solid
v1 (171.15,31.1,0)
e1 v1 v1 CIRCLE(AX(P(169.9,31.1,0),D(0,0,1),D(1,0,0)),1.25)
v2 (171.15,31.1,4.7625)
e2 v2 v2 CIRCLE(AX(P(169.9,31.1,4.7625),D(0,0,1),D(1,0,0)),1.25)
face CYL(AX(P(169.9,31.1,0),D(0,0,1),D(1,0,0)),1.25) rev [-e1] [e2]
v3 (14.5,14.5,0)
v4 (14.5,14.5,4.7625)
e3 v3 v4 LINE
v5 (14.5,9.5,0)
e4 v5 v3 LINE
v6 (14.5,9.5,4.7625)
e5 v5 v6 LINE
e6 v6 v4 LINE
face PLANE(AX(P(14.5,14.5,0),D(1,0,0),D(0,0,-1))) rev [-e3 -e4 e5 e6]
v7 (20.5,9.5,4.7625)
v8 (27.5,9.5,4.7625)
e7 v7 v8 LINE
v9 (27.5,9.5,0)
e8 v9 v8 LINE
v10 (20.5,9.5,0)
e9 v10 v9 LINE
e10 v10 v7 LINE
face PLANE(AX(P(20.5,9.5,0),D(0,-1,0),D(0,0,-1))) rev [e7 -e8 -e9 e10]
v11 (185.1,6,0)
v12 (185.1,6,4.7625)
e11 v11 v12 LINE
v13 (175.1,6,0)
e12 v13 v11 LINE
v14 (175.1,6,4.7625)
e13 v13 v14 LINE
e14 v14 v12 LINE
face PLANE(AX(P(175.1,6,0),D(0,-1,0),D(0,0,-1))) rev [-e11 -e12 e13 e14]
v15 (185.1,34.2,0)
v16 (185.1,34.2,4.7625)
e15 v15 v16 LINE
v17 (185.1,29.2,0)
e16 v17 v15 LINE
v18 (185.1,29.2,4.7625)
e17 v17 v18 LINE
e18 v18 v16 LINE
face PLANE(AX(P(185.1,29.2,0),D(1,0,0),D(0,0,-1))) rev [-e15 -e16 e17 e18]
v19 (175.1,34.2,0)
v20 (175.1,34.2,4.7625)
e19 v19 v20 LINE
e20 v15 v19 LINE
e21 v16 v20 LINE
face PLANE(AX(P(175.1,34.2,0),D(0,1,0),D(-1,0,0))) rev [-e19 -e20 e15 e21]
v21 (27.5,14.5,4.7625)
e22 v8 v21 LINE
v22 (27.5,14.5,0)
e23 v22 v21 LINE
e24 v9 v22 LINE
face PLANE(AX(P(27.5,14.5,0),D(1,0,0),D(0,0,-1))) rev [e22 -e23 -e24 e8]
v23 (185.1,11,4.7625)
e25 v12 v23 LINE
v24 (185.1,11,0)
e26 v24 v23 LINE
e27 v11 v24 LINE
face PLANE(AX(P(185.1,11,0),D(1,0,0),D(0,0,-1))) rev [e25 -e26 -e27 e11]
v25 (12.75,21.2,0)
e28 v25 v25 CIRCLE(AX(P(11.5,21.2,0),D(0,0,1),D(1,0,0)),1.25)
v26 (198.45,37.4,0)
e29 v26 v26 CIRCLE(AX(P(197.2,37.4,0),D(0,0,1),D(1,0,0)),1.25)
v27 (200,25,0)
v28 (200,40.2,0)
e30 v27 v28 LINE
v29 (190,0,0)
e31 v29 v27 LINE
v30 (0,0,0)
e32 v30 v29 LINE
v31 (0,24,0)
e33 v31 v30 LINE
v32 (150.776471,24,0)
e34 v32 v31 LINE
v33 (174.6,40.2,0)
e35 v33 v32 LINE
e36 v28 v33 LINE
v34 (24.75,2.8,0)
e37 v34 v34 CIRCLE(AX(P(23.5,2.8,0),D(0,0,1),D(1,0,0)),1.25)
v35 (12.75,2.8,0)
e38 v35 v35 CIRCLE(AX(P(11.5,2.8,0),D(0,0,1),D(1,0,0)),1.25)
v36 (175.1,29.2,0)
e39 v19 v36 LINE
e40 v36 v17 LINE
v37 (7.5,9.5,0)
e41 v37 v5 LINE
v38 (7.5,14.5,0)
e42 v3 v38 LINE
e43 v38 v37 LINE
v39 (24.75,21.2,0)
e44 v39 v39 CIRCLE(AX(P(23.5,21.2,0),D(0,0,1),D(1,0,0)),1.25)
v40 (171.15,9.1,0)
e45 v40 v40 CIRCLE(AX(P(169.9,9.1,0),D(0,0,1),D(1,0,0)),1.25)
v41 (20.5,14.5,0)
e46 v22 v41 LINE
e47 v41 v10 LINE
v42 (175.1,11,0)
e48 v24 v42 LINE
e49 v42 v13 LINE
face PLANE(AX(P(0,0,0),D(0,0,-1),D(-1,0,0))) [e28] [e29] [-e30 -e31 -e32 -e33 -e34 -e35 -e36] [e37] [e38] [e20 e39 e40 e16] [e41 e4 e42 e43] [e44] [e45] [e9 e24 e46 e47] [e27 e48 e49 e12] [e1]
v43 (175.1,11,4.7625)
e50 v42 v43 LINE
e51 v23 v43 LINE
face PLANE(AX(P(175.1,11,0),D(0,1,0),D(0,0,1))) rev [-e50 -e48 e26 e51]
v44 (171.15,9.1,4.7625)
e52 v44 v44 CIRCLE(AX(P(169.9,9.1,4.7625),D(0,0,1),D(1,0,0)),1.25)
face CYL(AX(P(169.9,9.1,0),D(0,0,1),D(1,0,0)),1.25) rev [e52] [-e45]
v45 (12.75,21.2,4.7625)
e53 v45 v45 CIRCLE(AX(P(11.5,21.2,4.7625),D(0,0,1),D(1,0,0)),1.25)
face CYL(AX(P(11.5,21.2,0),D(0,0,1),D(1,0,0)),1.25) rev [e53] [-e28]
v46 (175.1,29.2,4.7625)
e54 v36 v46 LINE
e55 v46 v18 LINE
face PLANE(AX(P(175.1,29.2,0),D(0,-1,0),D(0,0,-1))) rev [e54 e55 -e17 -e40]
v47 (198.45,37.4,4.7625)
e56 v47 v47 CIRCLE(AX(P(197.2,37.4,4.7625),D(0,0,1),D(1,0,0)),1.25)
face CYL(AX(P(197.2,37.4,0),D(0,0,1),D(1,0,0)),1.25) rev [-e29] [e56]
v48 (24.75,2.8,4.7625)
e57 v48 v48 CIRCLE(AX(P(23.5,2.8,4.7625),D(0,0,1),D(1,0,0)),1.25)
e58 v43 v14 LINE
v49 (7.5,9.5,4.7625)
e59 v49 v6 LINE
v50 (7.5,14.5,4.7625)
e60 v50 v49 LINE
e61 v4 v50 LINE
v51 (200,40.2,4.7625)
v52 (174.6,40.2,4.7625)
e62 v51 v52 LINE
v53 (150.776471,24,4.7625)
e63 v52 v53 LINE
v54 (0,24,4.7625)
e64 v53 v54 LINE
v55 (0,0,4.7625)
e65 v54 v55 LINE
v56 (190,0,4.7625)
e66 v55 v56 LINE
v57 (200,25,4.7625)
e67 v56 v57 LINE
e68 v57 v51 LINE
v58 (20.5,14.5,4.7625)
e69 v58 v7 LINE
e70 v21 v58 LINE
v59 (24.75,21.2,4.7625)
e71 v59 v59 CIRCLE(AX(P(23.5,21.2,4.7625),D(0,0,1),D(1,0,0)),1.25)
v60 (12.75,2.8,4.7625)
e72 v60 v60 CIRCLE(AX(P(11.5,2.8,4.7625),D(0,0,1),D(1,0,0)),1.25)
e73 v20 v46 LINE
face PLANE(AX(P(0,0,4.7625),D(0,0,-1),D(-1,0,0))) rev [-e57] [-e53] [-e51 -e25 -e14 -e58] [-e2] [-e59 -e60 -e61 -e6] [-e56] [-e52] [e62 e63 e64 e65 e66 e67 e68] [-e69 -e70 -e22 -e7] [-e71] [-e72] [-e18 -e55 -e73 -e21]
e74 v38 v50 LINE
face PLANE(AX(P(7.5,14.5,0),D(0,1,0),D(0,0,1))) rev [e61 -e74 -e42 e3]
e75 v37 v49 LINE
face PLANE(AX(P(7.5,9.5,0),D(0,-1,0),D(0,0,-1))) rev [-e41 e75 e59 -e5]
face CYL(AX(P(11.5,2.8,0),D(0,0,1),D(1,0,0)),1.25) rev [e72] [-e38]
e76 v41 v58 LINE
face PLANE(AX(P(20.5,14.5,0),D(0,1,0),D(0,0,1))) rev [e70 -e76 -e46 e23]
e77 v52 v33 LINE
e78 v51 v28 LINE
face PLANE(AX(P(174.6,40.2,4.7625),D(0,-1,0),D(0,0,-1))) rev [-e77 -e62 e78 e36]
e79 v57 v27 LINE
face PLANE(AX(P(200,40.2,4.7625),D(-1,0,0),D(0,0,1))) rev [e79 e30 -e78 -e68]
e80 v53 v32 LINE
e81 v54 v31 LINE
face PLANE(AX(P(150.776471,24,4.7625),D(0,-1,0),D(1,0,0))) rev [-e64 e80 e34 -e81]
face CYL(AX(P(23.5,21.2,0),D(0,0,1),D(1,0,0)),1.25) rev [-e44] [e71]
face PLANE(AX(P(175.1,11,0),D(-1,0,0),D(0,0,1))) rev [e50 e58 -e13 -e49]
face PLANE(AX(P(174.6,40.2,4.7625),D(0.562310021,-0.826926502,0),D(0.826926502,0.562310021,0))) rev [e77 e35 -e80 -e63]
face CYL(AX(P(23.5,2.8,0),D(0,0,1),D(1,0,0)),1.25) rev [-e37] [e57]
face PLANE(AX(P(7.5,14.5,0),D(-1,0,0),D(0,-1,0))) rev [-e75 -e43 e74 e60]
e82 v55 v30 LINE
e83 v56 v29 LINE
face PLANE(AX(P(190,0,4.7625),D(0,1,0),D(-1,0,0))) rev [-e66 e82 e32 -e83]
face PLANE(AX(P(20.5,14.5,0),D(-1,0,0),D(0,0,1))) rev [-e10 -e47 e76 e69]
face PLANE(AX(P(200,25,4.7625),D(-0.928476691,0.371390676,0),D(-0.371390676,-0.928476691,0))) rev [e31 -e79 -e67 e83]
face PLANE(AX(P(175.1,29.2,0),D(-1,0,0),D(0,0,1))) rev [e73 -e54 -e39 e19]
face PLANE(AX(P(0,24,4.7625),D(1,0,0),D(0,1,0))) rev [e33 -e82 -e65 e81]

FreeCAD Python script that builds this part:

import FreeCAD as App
import Part
import Sketcher
from FreeCAD import Vector
Q = App.Units.Quantity


def add_polygon(sketch, points):
    """Adds a closed chain of lines whose ends are joined by coincident constraints."""
    first, n = sketch.GeometryCount, len(points)
    for a, b in zip(points, points[1:] + points[:1]):
        sketch.addGeometry(Part.LineSegment(App.Vector(*a, 0), App.Vector(*b, 0)), False)
    for i in range(n):
        sketch.addConstraint(Sketcher.Constraint("Coincident", first + i, 2, first + (i + 1) % n, 1))

doc = App.newDocument("Part")
body = doc.addObject("PartDesign::Body", "Body")

# Sketch on XY plane
sketch1 = body.newObject("Sketcher::SketchObject", "Sketch")
sketch1.AttachmentSupport = (doc.getObject("XY_Plane"), [""])
sketch1.MapMode = "FlatFace"
add_polygon(sketch1, [(175, 40), (151, 24), (0, 24), (0, 0), (190, 0), (200, 25), (200, 40)])  # lines 0-6
sketch1.addConstraint(Sketcher.Constraint("Horizontal", 1))
sketch1.addConstraint(Sketcher.Constraint("Vertical", 2))
sketch1.addConstraint(Sketcher.Constraint("Horizontal", 3))
sketch1.addConstraint(Sketcher.Constraint("Vertical", 5))
sketch1.addConstraint(Sketcher.Constraint("Horizontal", 6))
sketch1.addConstraint(Sketcher.Constraint("Coincident", 2, 2, -1, 1))
sketch1.addConstraint(Sketcher.Constraint("DistanceX", 3, 1, 3, 2, Q("190 mm")))
sketch1.addConstraint(Sketcher.Constraint("DistanceY", 2, 2, 2, 1, Q("24 mm")))
sketch1.addConstraint(Sketcher.Constraint("DistanceX", 6, 2, 6, 1, Q("25.4 mm")))
sketch1.addConstraint(Sketcher.Constraint("DistanceY", 5, 1, 5, 2, Q("15.2 mm")))
sketch1.addConstraint(Sketcher.Constraint("DistanceX", -1, 1, 4, 2, Q("200 mm")))
sketch1.addConstraint(Sketcher.Constraint("DistanceY", -1, 1, 4, 2, Q("25 mm")))
sketch1.addConstraint(Sketcher.Constraint("DistanceX", 1, 2, 1, 1, Q("150.776471 mm")))
pad1 = body.newObject("PartDesign::Pad", "Pad")
pad1.Profile = sketch1
pad1.Length = 4.7625

# Sketch on XY plane
sketch2 = body.newObject("Sketcher::SketchObject", "Sketch001")
sketch2.AttachmentSupport = (doc.getObject("XY_Plane"), [""])
sketch2.MapMode = "FlatFace"
sketch2.AttachmentOffset = App.Placement(Vector(0, 0, 4.7625), App.Rotation())
sketch2.addGeometry(Part.Circle(Vector(169.9, 31.1, 0), Vector(0, 0, 1), 1.2), False)  # 0
sketch2.addGeometry(Part.Circle(Vector(197.2, 37.4, 0), Vector(0, 0, 1), 1.2), False)  # 1
sketch2.addGeometry(Part.Circle(Vector(169.9, 9.1, 0), Vector(0, 0, 1), 1.2), False)  # 2
sketch2.addGeometry(Part.Circle(Vector(23.5, 21.2, 0), Vector(0, 0, 1), 1.2), False)  # 3
sketch2.addGeometry(Part.Circle(Vector(11.5, 21.2, 0), Vector(0, 0, 1), 1.2), False)  # 4
sketch2.addGeometry(Part.Circle(Vector(11.5, 2.8, 0), Vector(0, 0, 1), 1.2), False)  # 5
sketch2.addGeometry(Part.Circle(Vector(23.5, 2.8, 0), Vector(0, 0, 1), 1.2), False)  # 6
add_polygon(sketch2, [(175.1, 34.2), (175.1, 29.2), (185.1, 29.2), (185.1, 34.2)])  # lines 7-10
add_polygon(sketch2, [(175.1, 11), (175.1, 6), (185.1, 6), (185.1, 11)])  # lines 11-14
add_polygon(sketch2, [(7.5, 14.5), (7.5, 9.5), (14.5, 9.5), (14.5, 14.5)])  # lines 15-18
add_polygon(sketch2, [(20.5, 14.5), (20.5, 9.5), (27.5, 9.5), (27.5, 14.5)])  # lines 19-22
sketch2.addConstraint(Sketcher.Constraint("Vertical", 7))
sketch2.addConstraint(Sketcher.Constraint("Horizontal", 8))
sketch2.addConstraint(Sketcher.Constraint("Vertical", 9))
sketch2.addConstraint(Sketcher.Constraint("Horizontal", 10))
sketch2.addConstraint(Sketcher.Constraint("Vertical", 11))
sketch2.addConstraint(Sketcher.Constraint("Horizontal", 12))
sketch2.addConstraint(Sketcher.Constraint("Vertical", 13))
sketch2.addConstraint(Sketcher.Constraint("Horizontal", 14))
sketch2.addConstraint(Sketcher.Constraint("Vertical", 15))
sketch2.addConstraint(Sketcher.Constraint("Horizontal", 16))
sketch2.addConstraint(Sketcher.Constraint("Vertical", 17))
sketch2.addConstraint(Sketcher.Constraint("Horizontal", 18))
sketch2.addConstraint(Sketcher.Constraint("Vertical", 19))
sketch2.addConstraint(Sketcher.Constraint("Horizontal", 20))
sketch2.addConstraint(Sketcher.Constraint("Vertical", 21))
sketch2.addConstraint(Sketcher.Constraint("Horizontal", 22))
sketch2.addConstraint(Sketcher.Constraint("Equal", 0, 1))
sketch2.addConstraint(Sketcher.Constraint("Equal", 1, 2))
sketch2.addConstraint(Sketcher.Constraint("Equal", 2, 3))
sketch2.addConstraint(Sketcher.Constraint("Equal", 3, 4))
sketch2.addConstraint(Sketcher.Constraint("Equal", 4, 5))
sketch2.addConstraint(Sketcher.Constraint("Equal", 5, 6))
sketch2.addConstraint(Sketcher.Constraint("Horizontal", 3, 3, 4, 3))
sketch2.addConstraint(Sketcher.Constraint("Horizontal", 5, 3, 6, 3))
sketch2.addConstraint(Sketcher.Constraint("Horizontal", 16, 2, 19, 2))
sketch2.addConstraint(Sketcher.Constraint("Horizontal", 18, 2, 21, 2))
sketch2.addConstraint(Sketcher.Constraint("Vertical", 0, 3, 2, 3))
sketch2.addConstraint(Sketcher.Constraint("Vertical", 4, 3, 5, 3))
sketch2.addConstraint(Sketcher.Constraint("Vertical", 3, 3, 6, 3))
sketch2.addConstraint(Sketcher.Constraint("Vertical", 10, 2, 11, 2))
sketch2.addConstraint(Sketcher.Constraint("Vertical", 9, 2, 12, 2))
sketch2.addConstraint(Sketcher.Constraint("Equal", 18, 20))
sketch2.addConstraint(Sketcher.Constraint("Equal", 9, 11))
sketch2.addConstraint(Sketcher.Constraint("Equal", 13, 15))
sketch2.addConstraint(Sketcher.Constraint("Diameter", 0, Q("2.5 mm")))
sketch2.addConstraint(Sketcher.Constraint("DistanceX", 8, 1, 8, 2, Q("10 mm")))
sketch2.addConstraint(Sketcher.Constraint("DistanceX", 16, 1, 16, 2, Q("7 mm")))
sketch2.addConstraint(Sketcher.Constraint("DistanceY", 7, 2, 7, 1, Q("5 mm")))
sketch2.addConstraint(Sketcher.Constraint("DistanceY", -1, 1, 11, 2, Q("6 mm")))
sketch2.addConstraint(Sketcher.Constraint("DistanceY", 2, 3, 0, 3, Q("22 mm")))
sketch2.addConstraint(Sketcher.Constraint("DistanceX", 4, 3, 3, 3, Q("12 mm")))
sketch2.addConstraint(Sketcher.Constraint("DistanceY", 3, 3, 7, 2, Q("8 mm")))
sketch2.addConstraint(Sketcher.Constraint("DistanceX", 15, 2, 5, 3, Q("4 mm")))
sketch2.addConstraint(Sketcher.Constraint("DistanceX", 16, 2, 19, 2, Q("6 mm")))
sketch2.addConstraint(Sketcher.Constraint("DistanceX", -1, 1, 0, 3, Q("169.9 mm")))
sketch2.addConstraint(Sketcher.Constraint("DistanceY", -1, 1, 0, 3, Q("31.1 mm")))
sketch2.addConstraint(Sketcher.Constraint("DistanceX", -1, 1, 1, 3, Q("197.2 mm")))
sketch2.addConstraint(Sketcher.Constraint("DistanceY", -1, 1, 1, 3, Q("37.4 mm")))
sketch2.addConstraint(Sketcher.Constraint("DistanceX", -1, 1, 3, 3, Q("23.5 mm")))
sketch2.addConstraint(Sketcher.Constraint("DistanceY", -1, 1, 3, 3, Q("21.2 mm")))
sketch2.addConstraint(Sketcher.Constraint("DistanceY", -1, 1, 5, 3, Q("2.8 mm")))
sketch2.addConstraint(Sketcher.Constraint("DistanceX", -1, 1, 7, 2, Q("175.1 mm")))
sketch2.addConstraint(Sketcher.Constraint("DistanceY", -1, 1, 15, 2, Q("9.5 mm")))
pocket1 = body.newObject("PartDesign::Pocket", "Pocket")
pocket1.Profile = sketch2
pocket1.Type = "ThroughAll"

doc.recompute()
